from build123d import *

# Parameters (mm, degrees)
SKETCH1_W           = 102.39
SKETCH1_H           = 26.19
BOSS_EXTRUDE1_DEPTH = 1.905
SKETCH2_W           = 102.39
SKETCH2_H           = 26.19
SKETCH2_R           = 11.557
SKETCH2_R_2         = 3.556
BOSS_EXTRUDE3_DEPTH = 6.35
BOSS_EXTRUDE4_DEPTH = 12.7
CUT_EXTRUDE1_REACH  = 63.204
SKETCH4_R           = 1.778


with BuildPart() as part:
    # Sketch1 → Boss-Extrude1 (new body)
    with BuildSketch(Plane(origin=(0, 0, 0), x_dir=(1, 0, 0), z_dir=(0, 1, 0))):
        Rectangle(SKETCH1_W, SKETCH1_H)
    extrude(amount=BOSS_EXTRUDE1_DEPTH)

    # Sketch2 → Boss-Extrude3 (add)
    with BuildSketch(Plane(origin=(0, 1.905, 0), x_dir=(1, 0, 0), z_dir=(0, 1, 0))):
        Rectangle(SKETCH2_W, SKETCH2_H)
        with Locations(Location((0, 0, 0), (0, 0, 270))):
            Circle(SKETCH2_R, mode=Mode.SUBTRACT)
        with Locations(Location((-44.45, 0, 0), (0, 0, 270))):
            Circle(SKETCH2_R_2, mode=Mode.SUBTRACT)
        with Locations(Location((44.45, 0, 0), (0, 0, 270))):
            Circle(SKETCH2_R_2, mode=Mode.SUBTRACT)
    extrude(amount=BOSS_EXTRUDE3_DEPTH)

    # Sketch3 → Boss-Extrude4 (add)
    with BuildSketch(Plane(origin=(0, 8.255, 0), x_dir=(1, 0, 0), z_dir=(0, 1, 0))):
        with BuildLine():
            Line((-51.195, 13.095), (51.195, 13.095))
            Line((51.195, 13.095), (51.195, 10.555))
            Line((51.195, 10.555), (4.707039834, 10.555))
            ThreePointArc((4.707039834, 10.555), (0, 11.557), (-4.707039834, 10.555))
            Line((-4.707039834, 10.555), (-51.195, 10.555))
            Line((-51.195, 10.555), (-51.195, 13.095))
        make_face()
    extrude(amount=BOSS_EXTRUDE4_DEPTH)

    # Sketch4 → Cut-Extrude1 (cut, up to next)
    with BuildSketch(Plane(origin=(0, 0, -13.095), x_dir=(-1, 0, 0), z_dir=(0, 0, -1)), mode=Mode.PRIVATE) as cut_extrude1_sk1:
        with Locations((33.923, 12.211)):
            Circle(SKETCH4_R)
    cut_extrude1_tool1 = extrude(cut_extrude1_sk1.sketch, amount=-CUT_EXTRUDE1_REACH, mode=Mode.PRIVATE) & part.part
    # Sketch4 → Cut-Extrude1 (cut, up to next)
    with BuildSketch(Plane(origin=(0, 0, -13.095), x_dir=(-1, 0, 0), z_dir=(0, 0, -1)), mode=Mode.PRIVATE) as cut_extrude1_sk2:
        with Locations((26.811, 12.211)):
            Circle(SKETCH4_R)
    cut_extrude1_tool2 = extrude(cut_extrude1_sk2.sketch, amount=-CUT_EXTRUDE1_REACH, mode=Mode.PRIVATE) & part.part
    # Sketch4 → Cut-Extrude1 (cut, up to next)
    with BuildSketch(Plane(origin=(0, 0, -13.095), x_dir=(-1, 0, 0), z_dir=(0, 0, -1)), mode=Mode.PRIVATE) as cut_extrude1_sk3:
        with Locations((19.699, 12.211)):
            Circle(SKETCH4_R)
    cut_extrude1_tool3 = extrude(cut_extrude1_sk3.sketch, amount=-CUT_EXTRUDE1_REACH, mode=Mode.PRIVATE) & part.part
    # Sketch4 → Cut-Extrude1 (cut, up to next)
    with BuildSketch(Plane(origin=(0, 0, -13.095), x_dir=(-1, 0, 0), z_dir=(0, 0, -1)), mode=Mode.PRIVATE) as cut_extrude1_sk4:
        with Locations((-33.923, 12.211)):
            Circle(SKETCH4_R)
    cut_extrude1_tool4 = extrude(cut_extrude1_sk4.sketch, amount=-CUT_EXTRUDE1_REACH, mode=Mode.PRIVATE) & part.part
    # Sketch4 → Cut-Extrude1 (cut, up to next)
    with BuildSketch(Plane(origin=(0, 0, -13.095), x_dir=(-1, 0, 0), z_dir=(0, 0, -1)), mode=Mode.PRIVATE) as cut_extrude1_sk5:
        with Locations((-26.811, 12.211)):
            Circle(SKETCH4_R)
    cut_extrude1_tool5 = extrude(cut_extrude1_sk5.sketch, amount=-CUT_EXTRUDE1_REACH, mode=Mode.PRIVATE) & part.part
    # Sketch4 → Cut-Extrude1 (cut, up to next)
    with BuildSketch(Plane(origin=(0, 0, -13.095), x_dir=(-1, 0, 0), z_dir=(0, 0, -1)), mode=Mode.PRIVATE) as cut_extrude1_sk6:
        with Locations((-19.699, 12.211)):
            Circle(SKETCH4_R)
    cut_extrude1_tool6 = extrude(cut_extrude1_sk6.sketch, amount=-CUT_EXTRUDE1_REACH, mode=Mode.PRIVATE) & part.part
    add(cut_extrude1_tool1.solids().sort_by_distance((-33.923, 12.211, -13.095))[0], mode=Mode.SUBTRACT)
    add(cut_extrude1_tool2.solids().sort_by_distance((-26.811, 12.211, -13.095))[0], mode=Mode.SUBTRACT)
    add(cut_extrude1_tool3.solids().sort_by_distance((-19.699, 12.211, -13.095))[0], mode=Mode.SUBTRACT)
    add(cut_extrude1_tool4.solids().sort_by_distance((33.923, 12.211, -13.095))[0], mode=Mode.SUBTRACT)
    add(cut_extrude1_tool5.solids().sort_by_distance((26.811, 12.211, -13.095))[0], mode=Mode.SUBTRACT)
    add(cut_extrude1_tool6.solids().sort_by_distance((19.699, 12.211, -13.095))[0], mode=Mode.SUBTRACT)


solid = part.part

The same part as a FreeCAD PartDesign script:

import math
import FreeCAD as App
import Part
import Sketcher

V = App.Vector
Q = App.Units.Quantity


def add_polygon(sketch, points):
    """Adds a closed chain of lines whose ends are joined by coincident constraints."""
    first, n = sketch.GeometryCount, len(points)
    for a, b in zip(points, points[1:] + points[:1]):
        sketch.addGeometry(Part.LineSegment(App.Vector(*a, 0), App.Vector(*b, 0)), False)
    for i in range(n):
        sketch.addConstraint(Sketcher.Constraint("Coincident", first + i, 2, first + (i + 1) % n, 1))

doc = App.newDocument("Part")
body = doc.addObject("PartDesign::Body", "Body")

sketch1 = body.newObject("Sketcher::SketchObject", "Sketch")
sketch1.AttachmentSupport = (doc.getObject("XZ_Plane"), [""])
sketch1.MapMode = "FlatFace"
add_polygon(sketch1, [(-51, -13), (-51, 13), (51, 13), (51, -13)])
sketch1.addConstraint([
    Sketcher.Constraint("Vertical", 0),
    Sketcher.Constraint("Horizontal", 1),
    Sketcher.Constraint("Vertical", 2),
    Sketcher.Constraint("Horizontal", 3),
    Sketcher.Constraint("Symmetric", 0, 2, 2, 2, -1, 1),
    Sketcher.Constraint("DistanceX", 1, 1, 1, 2, 102.39),
    Sketcher.Constraint("DistanceY", 0, 1, 0, 2, 26.19),
])
pad1 = body.newObject("PartDesign::Pad", "Pad")
pad1.Profile = sketch1
pad1.Length = Q("0.075 in")
pad1.Reversed = True

sketch2 = body.newObject("Sketcher::SketchObject", "Sketch001")
sketch2.AttachmentSupport = (doc.getObject("XZ_Plane"), [""])
sketch2.MapMode = "FlatFace"
sketch2.AttachmentOffset = App.Placement(V(0, 0, -0.075 * 25.4), App.Rotation())
add_polygon(sketch2, [(-51.2, -13.1), (-51.2, 13.1), (51.2, 13.1), (51.2, -13.1)])
sketch2.addGeometry(Part.Circle(V(-44.5, 0, 0), V(0, 0, 1), 3.6), False)
sketch2.addGeometry(Part.Circle(V(0, 0, 0), V(0, 0, 1), 11.6), False)
sketch2.addGeometry(Part.Circle(V(44.5, 0, 0), V(0, 0, 1), 3.6), False)
sketch2.addConstraint([
    Sketcher.Constraint("Vertical", 0),
    Sketcher.Constraint("Horizontal", 1),
    Sketcher.Constraint("Vertical", 2),
    Sketcher.Constraint("Horizontal", 3),
    Sketcher.Constraint("Coincident", 5, 3, -1, 1),
    Sketcher.Constraint("Equal", 4, 6),
    Sketcher.Constraint("Symmetric", 4, 3, 6, 3, -1, 1),
    Sketcher.Constraint("Symmetric", 0, 2, 2, 2, -1, 1),
    Sketcher.Constraint("PointOnObject", 4, 3, -1),
    Sketcher.Constraint("Diameter", 4, Q("0.28 in")),
    Sketcher.Constraint("Diameter", 5, Q("0.91 in")),
    Sketcher.Constraint("DistanceX", 4, 3, 6, 3, Q("3.5 in")),
    Sketcher.Constraint("DistanceX", 1, 1, 1, 2, 102.39),
    Sketcher.Constraint("DistanceY", 0, 1, 0, 2, 26.19),
])
pad2 = body.newObject("PartDesign::Pad", "Pad001")
pad2.Profile = sketch2
pad2.Length = Q("0.25 in")
pad2.Reversed = True

sketch3 = body.newObject("Sketcher::SketchObject", "Sketch002")
sketch3.AttachmentSupport = (doc.getObject("XZ_Plane"), [""])
sketch3.MapMode = "FlatFace"
sketch3.AttachmentOffset = App.Placement(V(0, 0, -0.325 * 25.4), App.Rotation())
sketch3.addGeometry([
    Part.LineSegment(V(51.2, -13.1, 0), V(-51.2, -13.1, 0)),
    Part.LineSegment(V(-51.2, -13.1, 0), V(-51.2, -10.6, 0)),
    Part.LineSegment(V(-51.2, -10.6, 0), V(-4.7, -10.6, 0)),
    Part.ArcOfCircle(Part.Circle(V(0, 0, 0), V(0, 0, 1), 11.6), math.radians(-114), math.radians(-66)),
    Part.LineSegment(V(4.7, -10.6, 0), V(51.2, -10.6, 0)),
    Part.LineSegment(V(51.2, -10.6, 0), V(51.2, -13.1, 0)),
], False)
sketch3.addConstraint([
    Sketcher.Constraint("Coincident", 0, 2, 1, 1),
    Sketcher.Constraint("Coincident", 1, 2, 2, 1),
    Sketcher.Constraint("Coincident", 2, 2, 3, 1),
    Sketcher.Constraint("Coincident", 3, 2, 4, 1),
    Sketcher.Constraint("Coincident", 4, 2, 5, 1),
    Sketcher.Constraint("Coincident", 5, 2, 0, 1),
    Sketcher.Constraint("Horizontal", 0),
    Sketcher.Constraint("Vertical", 1),
    Sketcher.Constraint("Horizontal", 2),
    Sketcher.Constraint("Horizontal", 4),
    Sketcher.Constraint("Vertical", 5),
    Sketcher.Constraint("Coincident", 3, 3, -1, 1),
    Sketcher.Constraint("Symmetric", 1, 2, 4, 2, -2),
    Sketcher.Constraint("DistanceY", 1, 1, 1, 2, Q("0.1 in")),
    Sketcher.Constraint("Radius", 3, Q("0.455 in")),
    Sketcher.Constraint("DistanceX", 0, 2, 0, 1, 102.39),
    Sketcher.Constraint("DistanceX", 2, 1, 2, 2, 46.48796),
])
pad3 = body.newObject("PartDesign::Pad", "Pad002")
pad3.Profile = sketch3
pad3.Length = Q("0.5 in")
pad3.Reversed = True

sketch4 = body.newObject("Sketcher::SketchObject", "Sketch003")
sketch4.AttachmentSupport = (doc.getObject("XY_Plane"), [""])
sketch4.MapMode = "FlatFace"
sketch4.AttachmentOffset = App.Placement(V(0, 0, -13.095), App.Rotation())
sketch4.addGeometry(Part.Circle(V(-33.9, 12.2, 0), V(0, 0, 1), 1.8), False)
sketch4.addConstraint([
    Sketcher.Constraint("Diameter", 0, Q("0.14 in")),
    Sketcher.Constraint("DistanceX", 0, 3, -1, 1, 33.923),
    Sketcher.Constraint("DistanceY", -1, 1, 0, 3, 12.211),
])
pocket1 = body.newObject("PartDesign::Pocket", "Pocket")
pocket1.Profile = sketch4
pocket1.Type = "UpToFirst"
pocket1.Reversed = True

sketch5 = body.newObject("Sketcher::SketchObject", "Sketch004")
sketch5.AttachmentSupport = (doc.getObject("XY_Plane"), [""])
sketch5.MapMode = "FlatFace"
sketch5.AttachmentOffset = App.Placement(V(0, 0, -13.095), App.Rotation())
sketch5.addGeometry(Part.Circle(V(-26.8, 12.2, 0), V(0, 0, 1), 1.8), False)
sketch5.addConstraint([
    Sketcher.Constraint("Diameter", 0, Q("0.14 in")),
    Sketcher.Constraint("DistanceX", 0, 3, -1, 1, 26.811),
    Sketcher.Constraint("DistanceY", -1, 1, 0, 3, 12.211),
])
pocket2 = body.newObject("PartDesign::Pocket", "Pocket001")
pocket2.Profile = sketch5
pocket2.Type = "UpToFirst"
pocket2.Reversed = True

sketch6 = body.newObject("Sketcher::SketchObject", "Sketch005")
sketch6.AttachmentSupport = (doc.getObject("XY_Plane"), [""])
sketch6.MapMode = "FlatFace"
sketch6.AttachmentOffset = App.Placement(V(0, 0, -13.095), App.Rotation())
sketch6.addGeometry(Part.Circle(V(-19.7, 12.2, 0), V(0, 0, 1), 1.8), False)
sketch6.addConstraint([
    Sketcher.Constraint("Diameter", 0, Q("0.14 in")),
    Sketcher.Constraint("DistanceX", 0, 3, -1, 1, 19.699),
    Sketcher.Constraint("DistanceY", -1, 1, 0, 3, 12.211),
])
pocket3 = body.newObject("PartDesign::Pocket", "Pocket002")
pocket3.Profile = sketch6
pocket3.Type = "UpToFirst"
pocket3.Reversed = True

sketch7 = body.newObject("Sketcher::SketchObject", "Sketch006")
sketch7.AttachmentSupport = (doc.getObject("XY_Plane"), [""])
sketch7.MapMode = "FlatFace"
sketch7.AttachmentOffset = App.Placement(V(0, 0, -13.095), App.Rotation())
sketch7.addGeometry(Part.Circle(V(33.9, 12.2, 0), V(0, 0, 1), 1.8), False)
sketch7.addConstraint([
    Sketcher.Constraint("Diameter", 0, Q("0.14 in")),
    Sketcher.Constraint("DistanceX", -1, 1, 0, 3, 33.923),
    Sketcher.Constraint("DistanceY", -1, 1, 0, 3, 12.211),
])
pocket4 = body.newObject("PartDesign::Pocket", "Pocket003")
pocket4.Profile = sketch7
pocket4.Type = "UpToFirst"
pocket4.Reversed = True

sketch8 = body.newObject("Sketcher::SketchObject", "Sketch007")
sketch8.AttachmentSupport = (doc.getObject("XY_Plane"), [""])
sketch8.MapMode = "FlatFace"
sketch8.AttachmentOffset = App.Placement(V(0, 0, -13.095), App.Rotation())
sketch8.addGeometry(Part.Circle(V(26.8, 12.2, 0), V(0, 0, 1), 1.8), False)
sketch8.addConstraint([
    Sketcher.Constraint("Diameter", 0, Q("0.14 in")),
    Sketcher.Constraint("DistanceX", -1, 1, 0, 3, 26.811),
    Sketcher.Constraint("DistanceY", -1, 1, 0, 3, 12.211),
])
pocket5 = body.newObject("PartDesign::Pocket", "Pocket004")
pocket5.Profile = sketch8
pocket5.Type = "UpToFirst"
pocket5.Reversed = True

sketch9 = body.newObject("Sketcher::SketchObject", "Sketch008")
sketch9.AttachmentSupport = (doc.getObject("XY_Plane"), [""])
sketch9.MapMode = "FlatFace"
sketch9.AttachmentOffset = App.Placement(V(0, 0, -13.095), App.Rotation())
sketch9.addGeometry(Part.Circle(V(19.7, 12.2, 0), V(0, 0, 1), 1.8), False)
sketch9.addConstraint([
    Sketcher.Constraint("Diameter", 0, Q("0.14 in")),
    Sketcher.Constraint("DistanceX", -1, 1, 0, 3, 19.699),
    Sketcher.Constraint("DistanceY", -1, 1, 0, 3, 12.211),
])
pocket6 = body.newObject("PartDesign::Pocket", "Pocket005")
pocket6.Profile = sketch9
pocket6.Type = "UpToFirst"
pocket6.Reversed = True

doc.recompute()
